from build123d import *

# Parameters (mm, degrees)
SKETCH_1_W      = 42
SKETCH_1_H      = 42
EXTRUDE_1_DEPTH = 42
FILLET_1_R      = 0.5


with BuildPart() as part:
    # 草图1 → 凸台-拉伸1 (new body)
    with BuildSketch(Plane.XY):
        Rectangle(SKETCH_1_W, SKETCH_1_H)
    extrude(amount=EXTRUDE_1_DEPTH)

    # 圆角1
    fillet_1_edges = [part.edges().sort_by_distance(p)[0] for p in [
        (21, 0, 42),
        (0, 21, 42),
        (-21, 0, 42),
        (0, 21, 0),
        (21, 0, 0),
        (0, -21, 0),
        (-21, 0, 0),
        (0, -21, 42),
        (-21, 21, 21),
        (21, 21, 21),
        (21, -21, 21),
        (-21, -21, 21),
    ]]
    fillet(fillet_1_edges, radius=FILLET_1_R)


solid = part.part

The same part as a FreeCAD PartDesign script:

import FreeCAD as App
import Part
import Sketcher

V = App.Vector
Q = App.Units.Quantity

doc = App.newDocument("Part")
params = doc.addObject("Spreadsheet::Sheet", "Params")
for row, (alias, value) in enumerate([
    ("sketch1_width", "42 mm"),
    ("pad1_length", "42 mm"),
    ("fillet_radius", "0.5 mm"),
], start=1):
    params.set(f"A{row}", alias)
    params.set(f"B{row}", "=" + value)
    params.setAlias(f"B{row}", alias)

body = doc.addObject("PartDesign::Body", "Body")

# Sketch on XY plane
sketch1 = doc.addObject("Sketcher::SketchObject", "Sketch")
body.addObject(sketch1)
sketch1.AttachmentSupport = (doc.XY_Plane, [""])
sketch1.MapMode = "FlatFace"
sketch1.addGeometry([
    Part.LineSegment(V(-21, 21, 0), V(-21, -21, 0)),
    Part.LineSegment(V(-21, -21, 0), V(21, -21, 0)),
    Part.LineSegment(V(21, -21, 0), V(21, 21, 0)),
    Part.LineSegment(V(21, 21, 0), V(-21, 21, 0)),
], False)
sketch1.addConstraint([
    Sketcher.Constraint("Coincident", 0, 2, 1, 1),
    Sketcher.Constraint("Coincident", 1, 2, 2, 1),
    Sketcher.Constraint("Coincident", 2, 2, 3, 1),
    Sketcher.Constraint("Coincident", 3, 2, 0, 1),
    Sketcher.Constraint("Vertical", 0),
    Sketcher.Constraint("Horizontal", 1),
    Sketcher.Constraint("Vertical", 2),
    Sketcher.Constraint("Horizontal", 3),
    Sketcher.Constraint("Symmetric", 0, 2, 2, 2, -1, 1),
    Sketcher.Constraint("Equal", 3, 0),
    Sketcher.Constraint("DistanceX", 1, 1, 1, 2, Q("42 mm")),
])
sketch1.setExpression("Constraints[10]", "Params.sketch1_width")
pad1 = doc.addObject("PartDesign::Pad", "Pad")
body.addObject(pad1)
pad1.Profile = sketch1
pad1.setExpression("Length", "Params.pad1_length")
doc.recompute()

fillet = doc.addObject("PartDesign::Fillet", "Fillet")
body.addObject(fillet)
fillet.Base = (pad1, ["Edge1"])
fillet.UseAllEdges = True
fillet.setExpression("Radius", "Params.fillet_radius")

doc.recompute()
